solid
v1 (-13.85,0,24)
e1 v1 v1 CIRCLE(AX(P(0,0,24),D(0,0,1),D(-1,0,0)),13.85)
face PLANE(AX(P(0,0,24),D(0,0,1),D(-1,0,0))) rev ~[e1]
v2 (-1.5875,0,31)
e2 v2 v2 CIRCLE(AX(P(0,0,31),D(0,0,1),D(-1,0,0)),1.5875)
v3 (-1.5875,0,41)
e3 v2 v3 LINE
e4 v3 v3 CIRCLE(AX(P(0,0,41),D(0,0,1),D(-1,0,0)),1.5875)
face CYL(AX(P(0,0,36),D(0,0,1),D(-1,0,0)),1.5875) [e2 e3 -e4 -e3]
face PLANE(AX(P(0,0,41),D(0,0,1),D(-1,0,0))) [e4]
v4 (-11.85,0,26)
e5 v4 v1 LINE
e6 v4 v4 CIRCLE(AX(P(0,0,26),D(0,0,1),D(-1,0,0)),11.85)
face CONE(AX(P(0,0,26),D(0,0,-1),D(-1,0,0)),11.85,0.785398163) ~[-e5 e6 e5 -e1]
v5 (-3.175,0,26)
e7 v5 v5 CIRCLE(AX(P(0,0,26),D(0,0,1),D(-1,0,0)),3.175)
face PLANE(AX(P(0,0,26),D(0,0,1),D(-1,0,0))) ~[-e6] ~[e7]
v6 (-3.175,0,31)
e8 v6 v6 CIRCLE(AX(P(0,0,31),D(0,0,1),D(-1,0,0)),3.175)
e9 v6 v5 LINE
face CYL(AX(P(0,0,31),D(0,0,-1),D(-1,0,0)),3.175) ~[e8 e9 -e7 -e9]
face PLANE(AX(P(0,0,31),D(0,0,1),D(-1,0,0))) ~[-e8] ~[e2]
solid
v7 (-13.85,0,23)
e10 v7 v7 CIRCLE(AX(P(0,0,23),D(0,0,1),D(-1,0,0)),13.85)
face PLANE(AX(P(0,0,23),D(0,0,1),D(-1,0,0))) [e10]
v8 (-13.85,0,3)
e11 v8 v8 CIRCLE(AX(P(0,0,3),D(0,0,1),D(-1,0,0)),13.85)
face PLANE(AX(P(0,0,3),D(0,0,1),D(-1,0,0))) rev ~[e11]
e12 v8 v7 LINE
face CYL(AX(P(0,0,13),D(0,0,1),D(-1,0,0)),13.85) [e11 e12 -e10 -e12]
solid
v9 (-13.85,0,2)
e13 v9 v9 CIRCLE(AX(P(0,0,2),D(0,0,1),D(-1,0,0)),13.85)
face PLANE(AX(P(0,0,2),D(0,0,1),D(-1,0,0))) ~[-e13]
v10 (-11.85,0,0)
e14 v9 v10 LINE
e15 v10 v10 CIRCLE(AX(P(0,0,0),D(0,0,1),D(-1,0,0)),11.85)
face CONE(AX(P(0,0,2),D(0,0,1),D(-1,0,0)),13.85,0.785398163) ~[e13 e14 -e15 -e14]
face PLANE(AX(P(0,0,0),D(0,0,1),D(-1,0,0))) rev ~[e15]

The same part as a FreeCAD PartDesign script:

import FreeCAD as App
import Part
import Sketcher
Q = App.Units.Quantity

doc = App.newDocument("Part")
body = doc.addObject("PartDesign::Body", "Body")
body.AllowCompound = True

# Sketch on XZ plane
sketch1 = body.newObject("Sketcher::SketchObject", "Sketch")
sketch1.AttachmentSupport = (doc.getObject("XZ_Plane"), [""])
sketch1.MapMode = "FlatFace"
sketch1.addGeometry(Part.LineSegment(App.Vector(-11.8, 0, 0), App.Vector(0, 0, 0)), False)
sketch1.addGeometry(Part.LineSegment(App.Vector(0, 0, 0), App.Vector(0, 2, 0)), False)
sketch1.addGeometry(Part.LineSegment(App.Vector(0, 2, 0), App.Vector(-13.8, 2, 0)), False)
sketch1.addGeometry(Part.LineSegment(App.Vector(-13.8, 2, 0), App.Vector(-11.8, 0, 0)), False)
sketch1.addGeometry(Part.LineSegment(App.Vector(-13.8, 23, 0), App.Vector(-13.8, 3, 0)), False)
sketch1.addGeometry(Part.LineSegment(App.Vector(-13.8, 3, 0), App.Vector(0, 3, 0)), False)
sketch1.addGeometry(Part.LineSegment(App.Vector(0, 3, 0), App.Vector(0, 23, 0)), False)
sketch1.addGeometry(Part.LineSegment(App.Vector(0, 23, 0), App.Vector(-13.8, 23, 0)), False)
sketch1.addGeometry(Part.LineSegment(App.Vector(-13.8, 24, 0), App.Vector(0, 24, 0)), False)
sketch1.addGeometry(Part.LineSegment(App.Vector(0, 24, 0), App.Vector(0, 41, 0)), False)
sketch1.addGeometry(Part.LineSegment(App.Vector(0, 41, 0), App.Vector(-1.6, 41, 0)), False)
sketch1.addGeometry(Part.LineSegment(App.Vector(-1.6, 41, 0), App.Vector(-1.6, 31, 0)), False)
sketch1.addGeometry(Part.LineSegment(App.Vector(-1.6, 31, 0), App.Vector(-3.2, 31, 0)), False)
sketch1.addGeometry(Part.LineSegment(App.Vector(-3.2, 31, 0), App.Vector(-3.2, 26, 0)), False)
sketch1.addGeometry(Part.LineSegment(App.Vector(-3.2, 26, 0), App.Vector(-11.8, 26, 0)), False)
sketch1.addGeometry(Part.LineSegment(App.Vector(-11.8, 26, 0), App.Vector(-13.8, 24, 0)), False)
sketch1.addConstraint(Sketcher.Constraint("Coincident", 0, 2, 1, 1))
sketch1.addConstraint(Sketcher.Constraint("Coincident", 1, 2, 2, 1))
sketch1.addConstraint(Sketcher.Constraint("Coincident", 2, 2, 3, 1))
sketch1.addConstraint(Sketcher.Constraint("Coincident", 3, 2, 0, 1))
sketch1.addConstraint(Sketcher.Constraint("Coincident", 4, 2, 5, 1))
sketch1.addConstraint(Sketcher.Constraint("Coincident", 5, 2, 6, 1))
sketch1.addConstraint(Sketcher.Constraint("Coincident", 6, 2, 7, 1))
sketch1.addConstraint(Sketcher.Constraint("Coincident", 7, 2, 4, 1))
sketch1.addConstraint(Sketcher.Constraint("Coincident", 8, 2, 9, 1))
sketch1.addConstraint(Sketcher.Constraint("Coincident", 9, 2, 10, 1))
sketch1.addConstraint(Sketcher.Constraint("Coincident", 10, 2, 11, 1))
sketch1.addConstraint(Sketcher.Constraint("Coincident", 11, 2, 12, 1))
sketch1.addConstraint(Sketcher.Constraint("Coincident", 12, 2, 13, 1))
sketch1.addConstraint(Sketcher.Constraint("Coincident", 13, 2, 14, 1))
sketch1.addConstraint(Sketcher.Constraint("Coincident", 14, 2, 15, 1))
sketch1.addConstraint(Sketcher.Constraint("Coincident", 15, 2, 8, 1))
sketch1.addConstraint(Sketcher.Constraint("Horizontal", 0))
sketch1.addConstraint(Sketcher.Constraint("Vertical", 1))
sketch1.addConstraint(Sketcher.Constraint("Horizontal", 2))
sketch1.addConstraint(Sketcher.Constraint("Vertical", 4))
sketch1.addConstraint(Sketcher.Constraint("Horizontal", 5))
sketch1.addConstraint(Sketcher.Constraint("Vertical", 6))
sketch1.addConstraint(Sketcher.Constraint("Horizontal", 7))
sketch1.addConstraint(Sketcher.Constraint("Horizontal", 8))
sketch1.addConstraint(Sketcher.Constraint("Vertical", 9))
sketch1.addConstraint(Sketcher.Constraint("Horizontal", 10))
sketch1.addConstraint(Sketcher.Constraint("Vertical", 11))
sketch1.addConstraint(Sketcher.Constraint("Horizontal", 12))
sketch1.addConstraint(Sketcher.Constraint("Vertical", 13))
sketch1.addConstraint(Sketcher.Constraint("Horizontal", 14))
sketch1.addConstraint(Sketcher.Constraint("Coincident", 0, 2, -1, 1))
sketch1.addConstraint(Sketcher.Constraint("PointOnObject", 5, 2, -2))
sketch1.addConstraint(Sketcher.Constraint("PointOnObject", 8, 2, -2))
sketch1.addConstraint(Sketcher.Constraint("Perpendicular", 3, 15))
sketch1.addConstraint(Sketcher.Constraint("Vertical", 2, 2, 4, 2))
sketch1.addConstraint(Sketcher.Constraint("Vertical", 3, 2, 14, 2))
sketch1.addConstraint(Sketcher.Constraint("Vertical", 7, 2, 15, 2))
sketch1.addConstraint(Sketcher.Constraint("Equal", 10, 12))
sketch1.addConstraint(Sketcher.Constraint("Equal", 3, 15))
sketch1.addConstraint(Sketcher.Constraint("DistanceY", 1, 1, 1, 2, Q("2 mm")))
sketch1.addConstraint(Sketcher.Constraint("DistanceY", 4, 2, 4, 1, Q("20 mm")))
sketch1.addConstraint(Sketcher.Constraint("DistanceY", 9, 1, 9, 2, Q("17 mm")))
sketch1.addConstraint(Sketcher.Constraint("DistanceY", 11, 2, 11, 1, Q("10 mm")))
sketch1.addConstraint(Sketcher.Constraint("DistanceY", -1, 1, 4, 2, Q("3 mm")))
sketch1.addConstraint(Sketcher.Constraint("DistanceY", -1, 1, 8, 2, Q("24 mm")))
sketch1.addConstraint(Sketcher.Constraint("DistanceX", 0, 1, 0, 2, Q("11.85 mm")))
sketch1.addConstraint(Sketcher.Constraint("DistanceX", 14, 2, 14, 1, Q("8.675 mm")))
revolution = body.newObject("PartDesign::Revolution", "Revolution")
revolution.Profile = sketch1
revolution.ReferenceAxis = (sketch1, ["V_Axis"])
revolution.Angle = 360

doc.recompute()
